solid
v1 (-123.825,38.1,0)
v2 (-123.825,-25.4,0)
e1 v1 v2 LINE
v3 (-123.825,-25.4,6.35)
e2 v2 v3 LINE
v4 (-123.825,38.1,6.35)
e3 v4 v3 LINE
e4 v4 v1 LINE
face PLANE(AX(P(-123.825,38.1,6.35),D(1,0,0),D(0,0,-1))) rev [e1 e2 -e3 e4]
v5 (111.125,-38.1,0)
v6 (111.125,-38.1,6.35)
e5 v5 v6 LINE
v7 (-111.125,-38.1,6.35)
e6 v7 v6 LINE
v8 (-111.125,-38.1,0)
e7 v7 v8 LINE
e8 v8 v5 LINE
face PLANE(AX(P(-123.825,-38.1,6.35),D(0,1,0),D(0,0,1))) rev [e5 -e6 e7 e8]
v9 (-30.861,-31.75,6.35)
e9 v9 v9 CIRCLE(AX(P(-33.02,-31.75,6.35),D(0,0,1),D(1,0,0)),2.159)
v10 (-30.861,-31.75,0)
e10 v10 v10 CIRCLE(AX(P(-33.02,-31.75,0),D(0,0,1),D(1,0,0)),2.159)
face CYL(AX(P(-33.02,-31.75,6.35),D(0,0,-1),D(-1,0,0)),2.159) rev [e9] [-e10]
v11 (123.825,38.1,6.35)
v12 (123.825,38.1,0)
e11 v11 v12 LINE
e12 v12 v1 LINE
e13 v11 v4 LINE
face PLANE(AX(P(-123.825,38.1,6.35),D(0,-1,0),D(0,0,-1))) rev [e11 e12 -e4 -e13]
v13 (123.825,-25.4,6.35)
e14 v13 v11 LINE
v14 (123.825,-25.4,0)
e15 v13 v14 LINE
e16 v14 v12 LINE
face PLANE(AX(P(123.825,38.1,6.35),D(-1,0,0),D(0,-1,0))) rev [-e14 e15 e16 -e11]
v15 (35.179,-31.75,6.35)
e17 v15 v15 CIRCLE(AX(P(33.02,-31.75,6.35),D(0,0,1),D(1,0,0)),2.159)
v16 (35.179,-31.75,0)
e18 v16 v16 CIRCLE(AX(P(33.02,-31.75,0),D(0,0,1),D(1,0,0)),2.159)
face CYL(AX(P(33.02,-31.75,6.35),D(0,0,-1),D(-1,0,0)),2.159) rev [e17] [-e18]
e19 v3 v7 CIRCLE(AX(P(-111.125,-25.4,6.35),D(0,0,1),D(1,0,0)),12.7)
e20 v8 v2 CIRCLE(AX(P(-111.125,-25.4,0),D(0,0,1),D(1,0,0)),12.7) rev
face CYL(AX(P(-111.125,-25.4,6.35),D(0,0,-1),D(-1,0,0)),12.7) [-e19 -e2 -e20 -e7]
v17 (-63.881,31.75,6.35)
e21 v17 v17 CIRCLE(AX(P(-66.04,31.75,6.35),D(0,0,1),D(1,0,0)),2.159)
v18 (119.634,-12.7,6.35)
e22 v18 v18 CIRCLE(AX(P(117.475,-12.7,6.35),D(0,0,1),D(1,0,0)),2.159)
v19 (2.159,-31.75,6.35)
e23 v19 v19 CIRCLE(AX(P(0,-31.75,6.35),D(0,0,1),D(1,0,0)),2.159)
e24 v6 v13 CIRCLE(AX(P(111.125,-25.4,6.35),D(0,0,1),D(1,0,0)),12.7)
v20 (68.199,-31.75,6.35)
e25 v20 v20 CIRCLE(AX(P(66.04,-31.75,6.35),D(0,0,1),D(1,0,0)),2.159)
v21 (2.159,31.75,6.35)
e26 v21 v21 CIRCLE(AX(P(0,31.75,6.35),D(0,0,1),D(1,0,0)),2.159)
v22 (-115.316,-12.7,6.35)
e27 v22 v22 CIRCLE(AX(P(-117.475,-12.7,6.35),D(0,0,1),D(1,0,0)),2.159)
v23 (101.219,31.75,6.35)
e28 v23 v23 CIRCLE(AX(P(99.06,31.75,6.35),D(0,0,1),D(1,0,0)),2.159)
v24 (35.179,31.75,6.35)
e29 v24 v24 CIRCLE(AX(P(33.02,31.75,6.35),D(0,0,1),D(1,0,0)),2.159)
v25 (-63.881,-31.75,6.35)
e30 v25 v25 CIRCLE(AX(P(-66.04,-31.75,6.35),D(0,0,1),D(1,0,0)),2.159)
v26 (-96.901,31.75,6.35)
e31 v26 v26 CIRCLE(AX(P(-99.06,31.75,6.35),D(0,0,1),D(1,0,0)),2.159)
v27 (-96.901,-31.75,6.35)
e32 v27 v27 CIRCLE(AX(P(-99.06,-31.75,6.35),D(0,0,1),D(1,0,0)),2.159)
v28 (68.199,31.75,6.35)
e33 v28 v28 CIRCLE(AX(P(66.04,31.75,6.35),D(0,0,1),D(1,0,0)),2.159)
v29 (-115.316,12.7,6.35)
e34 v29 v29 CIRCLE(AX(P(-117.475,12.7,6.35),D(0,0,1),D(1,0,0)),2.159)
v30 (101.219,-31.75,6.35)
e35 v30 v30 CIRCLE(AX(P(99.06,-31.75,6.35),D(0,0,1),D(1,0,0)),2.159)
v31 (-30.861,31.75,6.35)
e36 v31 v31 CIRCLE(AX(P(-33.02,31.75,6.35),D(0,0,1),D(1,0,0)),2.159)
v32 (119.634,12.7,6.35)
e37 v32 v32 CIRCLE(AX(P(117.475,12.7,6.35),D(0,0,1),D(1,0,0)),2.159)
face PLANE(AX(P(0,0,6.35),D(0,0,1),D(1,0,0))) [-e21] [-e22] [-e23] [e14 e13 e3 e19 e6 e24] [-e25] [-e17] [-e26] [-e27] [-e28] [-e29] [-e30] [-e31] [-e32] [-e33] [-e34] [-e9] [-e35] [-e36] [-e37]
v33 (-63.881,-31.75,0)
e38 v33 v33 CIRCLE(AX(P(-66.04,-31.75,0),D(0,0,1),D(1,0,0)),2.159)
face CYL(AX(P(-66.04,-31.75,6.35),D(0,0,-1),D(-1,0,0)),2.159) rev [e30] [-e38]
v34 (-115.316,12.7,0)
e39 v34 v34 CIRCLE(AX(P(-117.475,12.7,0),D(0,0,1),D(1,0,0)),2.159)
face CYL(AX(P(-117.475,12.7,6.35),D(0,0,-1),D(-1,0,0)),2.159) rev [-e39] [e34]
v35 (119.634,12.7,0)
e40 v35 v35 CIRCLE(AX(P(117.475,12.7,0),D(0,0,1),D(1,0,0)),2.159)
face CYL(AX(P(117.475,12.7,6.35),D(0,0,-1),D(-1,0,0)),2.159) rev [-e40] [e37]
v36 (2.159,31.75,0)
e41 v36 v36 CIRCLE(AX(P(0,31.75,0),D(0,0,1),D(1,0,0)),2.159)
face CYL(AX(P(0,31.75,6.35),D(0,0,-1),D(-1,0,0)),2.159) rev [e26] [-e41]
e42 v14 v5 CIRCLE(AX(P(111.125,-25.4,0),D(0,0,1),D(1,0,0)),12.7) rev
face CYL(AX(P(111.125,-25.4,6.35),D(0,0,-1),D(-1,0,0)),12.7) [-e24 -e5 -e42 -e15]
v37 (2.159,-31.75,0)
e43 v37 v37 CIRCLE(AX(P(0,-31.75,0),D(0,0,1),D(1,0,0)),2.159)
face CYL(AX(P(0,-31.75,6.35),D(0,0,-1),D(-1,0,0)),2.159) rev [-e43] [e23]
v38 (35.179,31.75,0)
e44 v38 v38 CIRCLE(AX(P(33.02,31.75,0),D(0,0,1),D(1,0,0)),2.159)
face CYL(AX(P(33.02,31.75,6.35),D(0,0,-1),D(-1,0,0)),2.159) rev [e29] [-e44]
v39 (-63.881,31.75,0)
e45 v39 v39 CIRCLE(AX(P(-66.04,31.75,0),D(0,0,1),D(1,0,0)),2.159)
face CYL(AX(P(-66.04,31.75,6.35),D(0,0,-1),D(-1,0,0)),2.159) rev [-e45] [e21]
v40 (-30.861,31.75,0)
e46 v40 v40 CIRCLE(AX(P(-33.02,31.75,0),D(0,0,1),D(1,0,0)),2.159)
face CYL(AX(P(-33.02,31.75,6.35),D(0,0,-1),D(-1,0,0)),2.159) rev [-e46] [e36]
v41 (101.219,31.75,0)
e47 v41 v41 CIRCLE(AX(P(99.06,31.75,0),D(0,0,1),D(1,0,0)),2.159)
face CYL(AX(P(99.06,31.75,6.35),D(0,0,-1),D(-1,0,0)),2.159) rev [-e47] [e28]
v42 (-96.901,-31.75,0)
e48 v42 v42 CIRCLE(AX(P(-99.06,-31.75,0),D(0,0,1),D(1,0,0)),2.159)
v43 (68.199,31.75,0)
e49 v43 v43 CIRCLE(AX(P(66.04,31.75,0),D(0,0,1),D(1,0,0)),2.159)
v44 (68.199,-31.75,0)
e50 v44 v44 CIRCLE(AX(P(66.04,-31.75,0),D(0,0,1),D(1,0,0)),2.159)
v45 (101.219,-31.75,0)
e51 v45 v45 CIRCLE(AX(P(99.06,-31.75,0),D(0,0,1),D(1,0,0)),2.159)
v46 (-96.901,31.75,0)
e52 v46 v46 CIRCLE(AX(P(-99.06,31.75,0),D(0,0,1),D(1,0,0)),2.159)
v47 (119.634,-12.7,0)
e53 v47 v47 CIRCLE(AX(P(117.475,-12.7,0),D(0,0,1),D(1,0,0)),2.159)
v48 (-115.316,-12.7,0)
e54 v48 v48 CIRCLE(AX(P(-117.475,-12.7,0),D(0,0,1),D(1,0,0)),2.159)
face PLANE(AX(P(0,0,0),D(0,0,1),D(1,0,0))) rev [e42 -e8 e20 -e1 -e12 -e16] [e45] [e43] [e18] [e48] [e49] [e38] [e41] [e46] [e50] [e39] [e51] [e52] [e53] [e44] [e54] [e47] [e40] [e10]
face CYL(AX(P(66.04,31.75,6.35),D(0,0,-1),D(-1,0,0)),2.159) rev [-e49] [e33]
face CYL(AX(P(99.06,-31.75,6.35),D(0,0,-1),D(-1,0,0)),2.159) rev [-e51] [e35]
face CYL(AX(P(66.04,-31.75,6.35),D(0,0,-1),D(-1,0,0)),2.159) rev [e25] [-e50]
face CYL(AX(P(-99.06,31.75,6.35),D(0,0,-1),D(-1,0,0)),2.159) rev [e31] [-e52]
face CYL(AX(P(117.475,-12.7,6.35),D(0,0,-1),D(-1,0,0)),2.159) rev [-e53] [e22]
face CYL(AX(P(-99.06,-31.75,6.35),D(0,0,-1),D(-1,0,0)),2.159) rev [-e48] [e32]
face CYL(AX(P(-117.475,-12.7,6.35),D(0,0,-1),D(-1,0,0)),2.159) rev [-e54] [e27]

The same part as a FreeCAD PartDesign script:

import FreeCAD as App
import Part
import Sketcher
from FreeCAD import Vector
Q = App.Units.Quantity


def edges_at(feature, points):
    """Names of the edges that pass closest to the given points."""
    edges = feature.Shape.Edges
    near = lambda p: min(range(len(edges)), key=lambda i: edges[i].distToShape(Part.Vertex(*p))[0])
    return sorted({f"Edge{near(p) + 1}" for p in points})


def add_polygon(sketch, points):
    """Adds a closed chain of lines whose ends are joined by coincident constraints."""
    first, n = sketch.GeometryCount, len(points)
    for a, b in zip(points, points[1:] + points[:1]):
        sketch.addGeometry(Part.LineSegment(App.Vector(*a, 0), App.Vector(*b, 0)), False)
    for i in range(n):
        sketch.addConstraint(Sketcher.Constraint("Coincident", first + i, 2, first + (i + 1) % n, 1))

doc = App.newDocument("Part")
params = doc.addObject("Spreadsheet::Sheet", "Params")
for row, (alias, value) in enumerate([
    ("sketch1_diameter", "0.17 in"),
    ("sketch1_height", "3 in"),
    ("sketch1_width", "9.75 in"),
    ("pad1_length", "0.25 in"),
    ("fillet_radius", "0.5 in"),
], start=1):
    params.set(f"A{row}", alias)
    params.set(f"B{row}", "=" + value)
    params.setAlias(f"B{row}", alias)

body = doc.addObject("PartDesign::Body", "Body")

sketch1 = body.newObject("Sketcher::SketchObject", "Sketch")
sketch1.AttachmentSupport = (doc.getObject("XY_Plane"), [""])
sketch1.MapMode = "FlatFace"
add_polygon(sketch1, [(-123.8, 38.1), (-123.8, -38.1), (123.8, -38.1), (123.8, 38.1)])
sketch1.addGeometry(Part.Circle(Vector(-99.1, -31.8, 0), Vector(0, 0, 1), 2.2), False)
sketch1.addGeometry(Part.Circle(Vector(-66, -31.8, 0), Vector(0, 0, 1), 2.2), False)
sketch1.addGeometry(Part.Circle(Vector(-33, -31.8, 0), Vector(0, 0, 1), 2.2), False)
sketch1.addGeometry(Part.Circle(Vector(0, -31.8, 0), Vector(0, 0, 1), 2.2), False)
sketch1.addGeometry(Part.Circle(Vector(-117.5, -12.7, 0), Vector(0, 0, 1), 2.2), False)
sketch1.addGeometry(Part.Circle(Vector(33, -31.8, 0), Vector(0, 0, 1), 2.2), False)
sketch1.addGeometry(Part.Circle(Vector(66, -31.8, 0), Vector(0, 0, 1), 2.2), False)
sketch1.addGeometry(Part.Circle(Vector(99.1, -31.8, 0), Vector(0, 0, 1), 2.2), False)
sketch1.addGeometry(Part.Circle(Vector(117.5, -12.7, 0), Vector(0, 0, 1), 2.2), False)
sketch1.addGeometry(Part.Circle(Vector(-117.5, 12.7, 0), Vector(0, 0, 1), 2.2), False)
sketch1.addGeometry(Part.Circle(Vector(-99.1, 31.8, 0), Vector(0, 0, 1), 2.2), False)
sketch1.addGeometry(Part.Circle(Vector(-66, 31.8, 0), Vector(0, 0, 1), 2.2), False)
sketch1.addGeometry(Part.Circle(Vector(-33, 31.8, 0), Vector(0, 0, 1), 2.2), False)
sketch1.addGeometry(Part.Circle(Vector(0, 31.8, 0), Vector(0, 0, 1), 2.2), False)
sketch1.addGeometry(Part.Circle(Vector(117.5, 12.7, 0), Vector(0, 0, 1), 2.2), False)
sketch1.addGeometry(Part.Circle(Vector(33, 31.8, 0), Vector(0, 0, 1), 2.2), False)
sketch1.addGeometry(Part.Circle(Vector(66, 31.8, 0), Vector(0, 0, 1), 2.2), False)
sketch1.addGeometry(Part.Circle(Vector(99.1, 31.8, 0), Vector(0, 0, 1), 2.2), False)
sketch1.addConstraint([
    Sketcher.Constraint("Vertical", 0),
    Sketcher.Constraint("Horizontal", 1),
    Sketcher.Constraint("Vertical", 2),
    Sketcher.Constraint("Horizontal", 3),
    Sketcher.Constraint("Equal", 4, 5),
    Sketcher.Constraint("Equal", 5, 6),
    Sketcher.Constraint("Equal", 6, 7),
    Sketcher.Constraint("Equal", 7, 8),
    Sketcher.Constraint("Equal", 8, 9),
    Sketcher.Constraint("Equal", 9, 10),
    Sketcher.Constraint("Equal", 10, 11),
    Sketcher.Constraint("Equal", 11, 12),
    Sketcher.Constraint("Equal", 12, 13),
    Sketcher.Constraint("Equal", 13, 14),
    Sketcher.Constraint("Equal", 14, 15),
    Sketcher.Constraint("Equal", 15, 16),
    Sketcher.Constraint("Equal", 16, 17),
    Sketcher.Constraint("Equal", 17, 18),
    Sketcher.Constraint("Equal", 18, 19),
    Sketcher.Constraint("Equal", 19, 20),
    Sketcher.Constraint("Equal", 20, 21),
    Sketcher.Constraint("Symmetric", 12, 3, 13, 3, -1, 1),
    Sketcher.Constraint("Symmetric", 11, 3, 14, 3, -1, 1),
    Sketcher.Constraint("Symmetric", 10, 3, 15, 3, -1, 1),
    Sketcher.Constraint("Symmetric", 9, 3, 16, 3, -1, 1),
    Sketcher.Constraint("Symmetric", 7, 3, 17, 3, -1, 1),
    Sketcher.Constraint("Symmetric", 8, 3, 18, 3, -1, 1),
    Sketcher.Constraint("Symmetric", 6, 3, 19, 3, -1, 1),
    Sketcher.Constraint("Symmetric", 5, 3, 20, 3, -1, 1),
    Sketcher.Constraint("Symmetric", 4, 3, 21, 3, -1, 1),
    Sketcher.Constraint("Symmetric", 0, 2, 2, 2, -1, 1),
    Sketcher.Constraint("Symmetric", 6, 3, 9, 3, -2),
    Sketcher.Constraint("Symmetric", 5, 3, 10, 3, -2),
    Sketcher.Constraint("Symmetric", 4, 3, 11, 3, -2),
    Sketcher.Constraint("Symmetric", 8, 3, 12, 3, -2),
    Sketcher.Constraint("PointOnObject", 7, 3, -2),
    Sketcher.Constraint("Horizontal", 4, 3, 5, 3),
    Sketcher.Constraint("Horizontal", 5, 3, 6, 3),
    Sketcher.Constraint("Horizontal", 6, 3, 7, 3),
    Sketcher.Constraint("Diameter", 4, Q("0.17 in")),
    Sketcher.Constraint("DistanceY", 0, 2, 0, 1, Q("3 in")),
    Sketcher.Constraint("DistanceY", 8, 3, 13, 3, Q("1 in")),
    Sketcher.Constraint("DistanceX", 1, 1, 1, 2, Q("9.75 in")),
    Sketcher.Constraint("DistanceX", 4, 3, -1, 1, Q("3.9 in")),
    Sketcher.Constraint("DistanceX", 5, 3, -1, 1, Q("2.6 in")),
    Sketcher.Constraint("DistanceX", 6, 3, -1, 1, Q("1.3 in")),
    Sketcher.Constraint("DistanceY", 4, 3, 14, 3, Q("2.5 in")),
    Sketcher.Constraint("DistanceX", 0, 2, 8, 3, Q("0.25 in")),
])
sketch1.setExpression("Constraints[43]", "Params.sketch1_diameter")
sketch1.setExpression("Constraints[44]", "Params.sketch1_height")
sketch1.setExpression("Constraints[46]", "Params.sketch1_width")
pad1 = body.newObject("PartDesign::Pad", "Pad")
pad1.Profile = sketch1
pad1.setExpression("Length", "Params.pad1_length")
doc.recompute()

fillet = body.newObject("PartDesign::Fillet", "Fillet")
fillet.Base = (pad1, edges_at(pad1, [(123.825, -38.1, 3.175), (-123.825, -38.1, 3.175)]))
fillet.setExpression("Radius", "Params.fillet_radius")

doc.recompute()
